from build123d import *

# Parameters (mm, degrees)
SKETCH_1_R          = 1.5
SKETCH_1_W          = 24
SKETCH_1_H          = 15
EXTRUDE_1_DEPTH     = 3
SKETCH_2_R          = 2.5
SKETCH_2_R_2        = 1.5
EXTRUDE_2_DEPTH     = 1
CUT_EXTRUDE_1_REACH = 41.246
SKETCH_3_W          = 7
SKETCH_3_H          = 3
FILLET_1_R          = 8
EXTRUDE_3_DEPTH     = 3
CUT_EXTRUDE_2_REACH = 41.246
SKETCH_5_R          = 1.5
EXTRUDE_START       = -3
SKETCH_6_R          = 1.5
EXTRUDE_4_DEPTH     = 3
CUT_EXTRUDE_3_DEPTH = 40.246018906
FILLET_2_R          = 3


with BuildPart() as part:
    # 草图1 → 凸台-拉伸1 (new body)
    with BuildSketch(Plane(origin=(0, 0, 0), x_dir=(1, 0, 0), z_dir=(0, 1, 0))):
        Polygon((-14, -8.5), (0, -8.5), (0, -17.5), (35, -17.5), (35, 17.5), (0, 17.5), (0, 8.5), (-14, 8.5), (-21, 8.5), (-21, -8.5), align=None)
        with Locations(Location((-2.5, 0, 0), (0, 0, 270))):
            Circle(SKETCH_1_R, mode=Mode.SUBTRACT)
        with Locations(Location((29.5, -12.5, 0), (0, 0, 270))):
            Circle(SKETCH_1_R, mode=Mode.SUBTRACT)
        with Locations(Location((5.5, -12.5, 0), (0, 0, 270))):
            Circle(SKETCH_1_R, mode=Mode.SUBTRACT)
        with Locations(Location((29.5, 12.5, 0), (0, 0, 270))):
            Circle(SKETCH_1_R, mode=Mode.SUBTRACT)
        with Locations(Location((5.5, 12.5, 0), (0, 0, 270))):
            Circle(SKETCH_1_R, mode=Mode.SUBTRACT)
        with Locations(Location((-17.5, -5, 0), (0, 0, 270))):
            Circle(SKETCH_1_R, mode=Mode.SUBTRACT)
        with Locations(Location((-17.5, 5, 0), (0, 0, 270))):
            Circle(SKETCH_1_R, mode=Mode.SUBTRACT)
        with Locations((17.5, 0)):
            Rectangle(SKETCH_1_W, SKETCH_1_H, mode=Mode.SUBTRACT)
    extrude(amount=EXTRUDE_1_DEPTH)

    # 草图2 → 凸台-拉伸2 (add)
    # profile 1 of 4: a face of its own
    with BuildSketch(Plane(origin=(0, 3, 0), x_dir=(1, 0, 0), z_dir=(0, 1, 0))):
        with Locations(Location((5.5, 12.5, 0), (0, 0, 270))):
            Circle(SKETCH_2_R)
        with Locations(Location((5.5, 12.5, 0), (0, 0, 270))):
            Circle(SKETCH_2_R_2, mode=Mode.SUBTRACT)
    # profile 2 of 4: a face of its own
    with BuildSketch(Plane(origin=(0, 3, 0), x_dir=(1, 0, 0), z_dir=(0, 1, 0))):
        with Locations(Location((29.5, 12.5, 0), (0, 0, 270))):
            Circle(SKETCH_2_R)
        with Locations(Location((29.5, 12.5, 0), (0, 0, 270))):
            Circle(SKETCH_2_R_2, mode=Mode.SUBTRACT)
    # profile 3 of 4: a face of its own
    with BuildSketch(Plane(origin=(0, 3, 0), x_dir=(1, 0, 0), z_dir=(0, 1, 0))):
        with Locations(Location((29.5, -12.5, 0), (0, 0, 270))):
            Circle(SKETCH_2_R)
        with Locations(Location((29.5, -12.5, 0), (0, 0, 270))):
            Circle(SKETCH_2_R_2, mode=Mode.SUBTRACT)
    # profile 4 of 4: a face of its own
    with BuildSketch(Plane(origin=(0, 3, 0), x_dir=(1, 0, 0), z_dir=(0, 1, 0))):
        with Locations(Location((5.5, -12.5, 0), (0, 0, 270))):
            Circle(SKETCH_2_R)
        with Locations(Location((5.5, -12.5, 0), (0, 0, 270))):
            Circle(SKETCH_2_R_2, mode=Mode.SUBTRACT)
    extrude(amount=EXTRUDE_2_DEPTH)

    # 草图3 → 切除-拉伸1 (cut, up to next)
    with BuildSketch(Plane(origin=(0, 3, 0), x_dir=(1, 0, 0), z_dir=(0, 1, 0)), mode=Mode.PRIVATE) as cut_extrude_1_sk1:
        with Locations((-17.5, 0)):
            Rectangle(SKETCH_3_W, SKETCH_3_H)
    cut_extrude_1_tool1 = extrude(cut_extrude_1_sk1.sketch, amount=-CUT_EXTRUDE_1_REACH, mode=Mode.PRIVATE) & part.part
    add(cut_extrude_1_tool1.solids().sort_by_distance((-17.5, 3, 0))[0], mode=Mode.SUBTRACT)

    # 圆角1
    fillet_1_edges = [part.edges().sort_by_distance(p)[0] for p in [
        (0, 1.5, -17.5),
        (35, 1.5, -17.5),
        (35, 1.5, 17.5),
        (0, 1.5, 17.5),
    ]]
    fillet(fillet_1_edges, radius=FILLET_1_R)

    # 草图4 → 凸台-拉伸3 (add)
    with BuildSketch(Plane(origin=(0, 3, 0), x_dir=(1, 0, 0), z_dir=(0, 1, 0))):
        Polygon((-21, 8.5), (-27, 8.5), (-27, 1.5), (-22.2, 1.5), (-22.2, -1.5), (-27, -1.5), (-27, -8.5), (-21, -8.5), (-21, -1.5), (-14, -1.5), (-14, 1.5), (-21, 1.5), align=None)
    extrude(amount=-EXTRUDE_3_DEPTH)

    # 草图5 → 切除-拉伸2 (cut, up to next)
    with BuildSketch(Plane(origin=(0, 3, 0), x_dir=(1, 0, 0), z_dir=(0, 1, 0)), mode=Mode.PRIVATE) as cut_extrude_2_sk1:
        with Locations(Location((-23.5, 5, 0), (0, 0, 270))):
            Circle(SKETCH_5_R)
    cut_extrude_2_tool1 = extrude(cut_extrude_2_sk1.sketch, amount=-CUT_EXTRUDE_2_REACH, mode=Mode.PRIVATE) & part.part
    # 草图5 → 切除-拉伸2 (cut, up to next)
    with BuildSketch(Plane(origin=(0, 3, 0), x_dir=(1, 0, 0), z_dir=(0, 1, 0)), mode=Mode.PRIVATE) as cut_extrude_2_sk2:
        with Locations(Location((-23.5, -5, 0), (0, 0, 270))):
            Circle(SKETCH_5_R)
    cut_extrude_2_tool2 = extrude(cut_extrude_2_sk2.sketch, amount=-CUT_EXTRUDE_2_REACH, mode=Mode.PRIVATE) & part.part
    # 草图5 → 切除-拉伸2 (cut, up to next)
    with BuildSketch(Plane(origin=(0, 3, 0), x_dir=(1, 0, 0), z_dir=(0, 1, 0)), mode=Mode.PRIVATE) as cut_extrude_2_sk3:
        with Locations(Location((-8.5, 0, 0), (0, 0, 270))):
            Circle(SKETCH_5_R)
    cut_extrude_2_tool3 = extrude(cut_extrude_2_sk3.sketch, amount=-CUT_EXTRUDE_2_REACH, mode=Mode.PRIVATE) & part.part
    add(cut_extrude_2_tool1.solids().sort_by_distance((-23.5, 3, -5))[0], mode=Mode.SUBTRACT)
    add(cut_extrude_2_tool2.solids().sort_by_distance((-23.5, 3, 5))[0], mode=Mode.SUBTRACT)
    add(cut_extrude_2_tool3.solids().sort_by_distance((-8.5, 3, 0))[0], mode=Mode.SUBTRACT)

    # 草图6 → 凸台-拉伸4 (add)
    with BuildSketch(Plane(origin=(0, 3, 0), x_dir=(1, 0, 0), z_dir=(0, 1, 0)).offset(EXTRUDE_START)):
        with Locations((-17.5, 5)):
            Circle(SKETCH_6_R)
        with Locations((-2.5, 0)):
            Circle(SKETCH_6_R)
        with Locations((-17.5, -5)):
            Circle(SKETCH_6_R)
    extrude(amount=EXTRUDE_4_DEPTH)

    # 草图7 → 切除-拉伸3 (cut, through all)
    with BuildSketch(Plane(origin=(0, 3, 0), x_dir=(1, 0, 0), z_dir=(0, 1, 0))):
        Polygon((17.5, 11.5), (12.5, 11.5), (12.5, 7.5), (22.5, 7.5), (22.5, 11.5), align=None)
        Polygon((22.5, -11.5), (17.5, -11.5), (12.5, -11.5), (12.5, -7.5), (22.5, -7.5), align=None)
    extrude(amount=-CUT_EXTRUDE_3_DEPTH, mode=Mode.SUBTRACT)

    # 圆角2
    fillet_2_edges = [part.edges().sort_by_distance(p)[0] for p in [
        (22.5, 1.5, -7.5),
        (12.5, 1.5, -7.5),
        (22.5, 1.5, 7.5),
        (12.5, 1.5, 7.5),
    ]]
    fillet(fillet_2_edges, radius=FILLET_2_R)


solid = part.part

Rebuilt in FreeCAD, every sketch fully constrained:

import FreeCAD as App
import Part
import Sketcher
from FreeCAD import Vector


def edges_at(feature, points):
    """Names of the edges that pass closest to the given points."""
    edges = feature.Shape.Edges
    near = lambda p: min(range(len(edges)), key=lambda i: edges[i].distToShape(Part.Vertex(*p))[0])
    return sorted({f"Edge{near(p) + 1}" for p in points})

doc = App.newDocument("Part")
body = doc.addObject("PartDesign::Body", "Body")

# Sketch on XZ plane
sketch1 = body.newObject("Sketcher::SketchObject", "Sketch")
sketch1.AttachmentSupport = (doc.getObject("XZ_Plane"), [""])
sketch1.MapMode = "FlatFace"
sketch1.addGeometry([
    Part.LineSegment(Vector(0, 8.5, 0), Vector(0, 17.5, 0)),  # 0
    Part.LineSegment(Vector(0, 17.5, 0), Vector(35, 17.5, 0)),  # 1
    Part.LineSegment(Vector(35, 17.5, 0), Vector(35, -17.5, 0)),  # 2
    Part.LineSegment(Vector(35, -17.5, 0), Vector(0, -17.5, 0)),  # 3
    Part.LineSegment(Vector(0, -17.5, 0), Vector(0, -8.5, 0)),  # 4
    Part.LineSegment(Vector(0, -8.5, 0), Vector(-21, -8.5, 0)),  # 5
    Part.LineSegment(Vector(-21, -8.5, 0), Vector(-21, 8.5, 0)),  # 6
    Part.LineSegment(Vector(-21, 8.5, 0), Vector(0, 8.5, 0)),  # 7
    Part.Circle(Vector(5.5, 12.5, 0), Vector(0, 0, 1), 1.5),  # 8
    Part.Circle(Vector(-17.5, 5, 0), Vector(0, 0, 1), 1.5),  # 9
    Part.Circle(Vector(29.5, 12.5, 0), Vector(0, 0, 1), 1.5),  # 10
    Part.Circle(Vector(-17.5, -5, 0), Vector(0, 0, 1), 1.5),  # 11
    Part.Circle(Vector(-2.5, 0, 0), Vector(0, 0, 1), 1.5),  # 12
    Part.Circle(Vector(5.5, -12.5, 0), Vector(0, 0, 1), 1.5),  # 13
    Part.LineSegment(Vector(29.5, 7.5, 0), Vector(5.5, 7.5, 0)),  # 14
    Part.LineSegment(Vector(5.5, 7.5, 0), Vector(5.5, -7.5, 0)),  # 15
    Part.LineSegment(Vector(5.5, -7.5, 0), Vector(29.5, -7.5, 0)),  # 16
    Part.LineSegment(Vector(29.5, -7.5, 0), Vector(29.5, 7.5, 0)),  # 17
    Part.Circle(Vector(29.5, -12.5, 0), Vector(0, 0, 1), 1.5),  # 18
], False)
sketch1.addConstraint([
    Sketcher.Constraint("Coincident", 0, 2, 1, 1),
    Sketcher.Constraint("Coincident", 1, 2, 2, 1),
    Sketcher.Constraint("Coincident", 2, 2, 3, 1),
    Sketcher.Constraint("Coincident", 3, 2, 4, 1),
    Sketcher.Constraint("Coincident", 4, 2, 5, 1),
    Sketcher.Constraint("Coincident", 5, 2, 6, 1),
    Sketcher.Constraint("Coincident", 6, 2, 7, 1),
    Sketcher.Constraint("Coincident", 7, 2, 0, 1),
    Sketcher.Constraint("Coincident", 14, 2, 15, 1),
    Sketcher.Constraint("Coincident", 15, 2, 16, 1),
    Sketcher.Constraint("Coincident", 16, 2, 17, 1),
    Sketcher.Constraint("Coincident", 17, 2, 14, 1),
    Sketcher.Constraint("Vertical", 0),
    Sketcher.Constraint("Horizontal", 1),
    Sketcher.Constraint("Vertical", 2),
    Sketcher.Constraint("Horizontal", 3),
    Sketcher.Constraint("Vertical", 4),
    Sketcher.Constraint("Horizontal", 5),
    Sketcher.Constraint("Vertical", 6),
    Sketcher.Constraint("Horizontal", 7),
    Sketcher.Constraint("Horizontal", 14),
    Sketcher.Constraint("Vertical", 15),
    Sketcher.Constraint("Horizontal", 16),
    Sketcher.Constraint("Vertical", 17),
    Sketcher.Constraint("Equal", 8, 9),
    Sketcher.Constraint("Equal", 9, 10),
    Sketcher.Constraint("Equal", 10, 11),
    Sketcher.Constraint("Equal", 11, 12),
    Sketcher.Constraint("Equal", 12, 13),
    Sketcher.Constraint("Equal", 13, 18),
    Sketcher.Constraint("Symmetric", 0, 2, 3, 2, -1, 1),
    Sketcher.Constraint("Symmetric", 9, 3, 11, 3, -1),
    Sketcher.Constraint("Symmetric", 8, 3, 13, 3, -1),
    Sketcher.Constraint("Symmetric", 10, 3, 18, 3, -1),
    Sketcher.Constraint("Symmetric", 4, 2, 7, 2, -1),
    Sketcher.Constraint("PointOnObject", 12, 3, -1),
    Sketcher.Constraint("Horizontal", 8, 3, 10, 3),
    Sketcher.Constraint("Vertical", 13, 3, 14, 2),
    Sketcher.Constraint("Vertical", 18, 3, 16, 2),
    Sketcher.Constraint("Equal", 3, 2),
    Sketcher.Constraint("Diameter", 8, 3.0),
    Sketcher.Constraint("DistanceX", 1, 1, 1, 2, 35.0),
    Sketcher.Constraint("DistanceX", 5, 2, 5, 1, 21.0),
    Sketcher.Constraint("DistanceX", 14, 2, 14, 1, 24.0),
    Sketcher.Constraint("DistanceY", 0, 1, 0, 2, 9.0),
    Sketcher.Constraint("DistanceY", 15, 2, 15, 1, 15.0),
    Sketcher.Constraint("DistanceY", -1, 1, 9, 3, 5.0),
    Sketcher.Constraint("DistanceX", 9, 3, 8, 3, 23.0),
    Sketcher.Constraint("DistanceX", 12, 3, 8, 3, 8.0),
    Sketcher.Constraint("DistanceY", 13, 3, 8, 3, 25.0),
    Sketcher.Constraint("DistanceY", 14, 2, 8, 3, 5.0),
    Sketcher.Constraint("DistanceX", -1, 1, 8, 3, 5.5),
])
pad1 = body.newObject("PartDesign::Pad", "Pad")
pad1.Profile = sketch1
pad1.Length = 3
pad1.Reversed = True

# Sketch on XZ plane
sketch2 = body.newObject("Sketcher::SketchObject", "Sketch001")
sketch2.AttachmentSupport = (doc.getObject("XZ_Plane"), [""])
sketch2.MapMode = "FlatFace"
sketch2.AttachmentOffset = App.Placement(Vector(0, 0, -3), App.Rotation())
sketch2.addGeometry([
    Part.Circle(Vector(5.5, -12.5, 0), Vector(0, 0, 1), 2.5),  # 0
    Part.Circle(Vector(5.5, -12.5, 0), Vector(0, 0, 1), 1.5),  # 1
    Part.Circle(Vector(29.5, -12.5, 0), Vector(0, 0, 1), 2.5),  # 2
    Part.Circle(Vector(29.5, -12.5, 0), Vector(0, 0, 1), 1.5),  # 3
    Part.Circle(Vector(29.5, 12.5, 0), Vector(0, 0, 1), 2.5),  # 4
    Part.Circle(Vector(29.5, 12.5, 0), Vector(0, 0, 1), 1.5),  # 5
    Part.Circle(Vector(5.5, 12.5, 0), Vector(0, 0, 1), 2.5),  # 6
    Part.Circle(Vector(5.5, 12.5, 0), Vector(0, 0, 1), 1.5),  # 7
], False)
sketch2.addConstraint([
    Sketcher.Constraint("Coincident", 1, 3, 0, 3),
    Sketcher.Constraint("Coincident", 3, 3, 2, 3),
    Sketcher.Constraint("Coincident", 5, 3, 4, 3),
    Sketcher.Constraint("Coincident", 7, 3, 6, 3),
    Sketcher.Constraint("Equal", 0, 2),
    Sketcher.Constraint("Equal", 1, 3),
    Sketcher.Constraint("Equal", 2, 4),
    Sketcher.Constraint("Equal", 3, 5),
    Sketcher.Constraint("Equal", 4, 6),
    Sketcher.Constraint("Equal", 5, 7),
    Sketcher.Constraint("Symmetric", 2, 3, 4, 3, -1),
    Sketcher.Constraint("Symmetric", 0, 3, 6, 3, -1),
    Sketcher.Constraint("Horizontal", 1, 3, 2, 3),
    Sketcher.Constraint("Diameter", 0, 5.0),
    Sketcher.Constraint("Diameter", 1, 3.0),
    Sketcher.Constraint("DistanceX", 0, 3, 2, 3, 24.0),
    Sketcher.Constraint("DistanceY", 2, 3, 4, 3, 25.0),
    Sketcher.Constraint("DistanceX", -1, 1, 0, 3, 5.5),
])
pad2 = body.newObject("PartDesign::Pad", "Pad001")
pad2.Profile = sketch2
pad2.Length = 1
pad2.Reversed = True

# Sketch on XZ plane
sketch3 = body.newObject("Sketcher::SketchObject", "Sketch002")
sketch3.AttachmentSupport = (doc.getObject("XZ_Plane"), [""])
sketch3.MapMode = "FlatFace"
sketch3.AttachmentOffset = App.Placement(Vector(0, 0, -3), App.Rotation())
sketch3.addGeometry([
    Part.LineSegment(Vector(-21, -1.5, 0), Vector(-21, 1.5, 0)),
    Part.LineSegment(Vector(-21, 1.5, 0), Vector(-14, 1.5, 0)),
    Part.LineSegment(Vector(-14, 1.5, 0), Vector(-14, -1.5, 0)),
    Part.LineSegment(Vector(-14, -1.5, 0), Vector(-21, -1.5, 0)),
], False)
sketch3.addConstraint([
    Sketcher.Constraint("Coincident", 0, 2, 1, 1),
    Sketcher.Constraint("Coincident", 1, 2, 2, 1),
    Sketcher.Constraint("Coincident", 2, 2, 3, 1),
    Sketcher.Constraint("Coincident", 3, 2, 0, 1),
    Sketcher.Constraint("Vertical", 0),
    Sketcher.Constraint("Horizontal", 1),
    Sketcher.Constraint("Vertical", 2),
    Sketcher.Constraint("Horizontal", 3),
    Sketcher.Constraint("DistanceX", 1, 1, 1, 2, 7.0),
    Sketcher.Constraint("DistanceY", 0, 1, 0, 2, 3.0),
    Sketcher.Constraint("DistanceX", 0, 2, -1, 1, 21.0),
    Sketcher.Constraint("DistanceY", -1, 1, 0, 2, 1.5),
])
pocket1 = body.newObject("PartDesign::Pocket", "Pocket")
pocket1.Profile = sketch3
pocket1.Type = "UpToFirst"
pocket1.Reversed = True
doc.recompute()

fillet = body.newObject("PartDesign::Fillet", "Fillet")
fillet.Base = (pocket1, edges_at(pocket1, [
    (0, 1.5, -17.5),
    (35, 1.5, -17.5),
    (35, 1.5, 17.5),
    (0, 1.5, 17.5),
]))
fillet.Radius = 8

# Sketch on XZ plane
sketch4 = body.newObject("Sketcher::SketchObject", "Sketch003")
sketch4.AttachmentSupport = (doc.getObject("XZ_Plane"), [""])
sketch4.MapMode = "FlatFace"
sketch4.AttachmentOffset = App.Placement(Vector(0, 0, -3), App.Rotation())
sketch4.addGeometry([
    Part.LineSegment(Vector(-21, -8.5, 0), Vector(-27, -8.5, 0)),  # 0
    Part.LineSegment(Vector(-27, -8.5, 0), Vector(-27, -1.5, 0)),  # 1
    Part.LineSegment(Vector(-27, -1.5, 0), Vector(-22.2, -1.5, 0)),  # 2
    Part.LineSegment(Vector(-22.2, -1.5, 0), Vector(-22.2, 1.5, 0)),  # 3
    Part.LineSegment(Vector(-22.2, 1.5, 0), Vector(-27, 1.5, 0)),  # 4
    Part.LineSegment(Vector(-27, 1.5, 0), Vector(-27, 8.5, 0)),  # 5
    Part.LineSegment(Vector(-27, 8.5, 0), Vector(-21, 8.5, 0)),  # 6
    Part.LineSegment(Vector(-21, 8.5, 0), Vector(-21, 1.5, 0)),  # 7
    Part.LineSegment(Vector(-21, 1.5, 0), Vector(-14, 1.5, 0)),  # 8
    Part.LineSegment(Vector(-14, 1.5, 0), Vector(-14, -1.5, 0)),  # 9
    Part.LineSegment(Vector(-14, -1.5, 0), Vector(-21, -1.5, 0)),  # 10
    Part.LineSegment(Vector(-21, -1.5, 0), Vector(-21, -8.5, 0)),  # 11
], False)
sketch4.addConstraint([
    Sketcher.Constraint("Coincident", 0, 2, 1, 1),
    Sketcher.Constraint("Coincident", 1, 2, 2, 1),
    Sketcher.Constraint("Coincident", 2, 2, 3, 1),
    Sketcher.Constraint("Coincident", 3, 2, 4, 1),
    Sketcher.Constraint("Coincident", 4, 2, 5, 1),
    Sketcher.Constraint("Coincident", 5, 2, 6, 1),
    Sketcher.Constraint("Coincident", 6, 2, 7, 1),
    Sketcher.Constraint("Coincident", 7, 2, 8, 1),
    Sketcher.Constraint("Coincident", 8, 2, 9, 1),
    Sketcher.Constraint("Coincident", 9, 2, 10, 1),
    Sketcher.Constraint("Coincident", 10, 2, 11, 1),
    Sketcher.Constraint("Coincident", 11, 2, 0, 1),
    Sketcher.Constraint("Horizontal", 0),
    Sketcher.Constraint("Vertical", 1),
    Sketcher.Constraint("Horizontal", 2),
    Sketcher.Constraint("Vertical", 3),
    Sketcher.Constraint("Horizontal", 4),
    Sketcher.Constraint("Vertical", 5),
    Sketcher.Constraint("Horizontal", 6),
    Sketcher.Constraint("Vertical", 7),
    Sketcher.Constraint("Horizontal", 8),
    Sketcher.Constraint("Vertical", 9),
    Sketcher.Constraint("Horizontal", 10),
    Sketcher.Constraint("Vertical", 11),
    Sketcher.Constraint("Symmetric", 1, 2, 4, 2, -1),
    Sketcher.Constraint("Symmetric", 7, 2, 10, 2, -1),
    Sketcher.Constraint("Horizontal", 4, 2, 7, 2),
    Sketcher.Constraint("Equal", 10, 1),
    Sketcher.Constraint("Equal", 1, 5),
    Sketcher.Constraint("DistanceX", 0, 2, 0, 1, 6.0),
    Sketcher.Constraint("DistanceX", 8, 1, 8, 2, 7.0),
    Sketcher.Constraint("DistanceY", 3, 1, 3, 2, 3.0),
    Sketcher.Constraint("DistanceX", 2, 1, 2, 2, 4.8),
    Sketcher.Constraint("DistanceX", 0, 2, -1, 1, 27.0),
])
pad3 = body.newObject("PartDesign::Pad", "Pad002")
pad3.Profile = sketch4
pad3.Length = 3

# Sketch on XZ plane
sketch5 = body.newObject("Sketcher::SketchObject", "Sketch004")
sketch5.AttachmentSupport = (doc.getObject("XZ_Plane"), [""])
sketch5.MapMode = "FlatFace"
sketch5.AttachmentOffset = App.Placement(Vector(0, 0, -3), App.Rotation())
sketch5.addGeometry(Part.Circle(Vector(-23.5, -5, 0), Vector(0, 0, 1), 1.5), False)
sketch5.addConstraint([
    Sketcher.Constraint("Diameter", 0, 3.0),
    Sketcher.Constraint("DistanceY", 0, 3, -1, 1, 5.0),
    Sketcher.Constraint("DistanceX", 0, 3, -1, 1, 23.5),
])
pocket2 = body.newObject("PartDesign::Pocket", "Pocket001")
pocket2.Profile = sketch5
pocket2.Type = "UpToFirst"
pocket2.Reversed = True

# Sketch on XZ plane
sketch6 = body.newObject("Sketcher::SketchObject", "Sketch005")
sketch6.AttachmentSupport = (doc.getObject("XZ_Plane"), [""])
sketch6.MapMode = "FlatFace"
sketch6.AttachmentOffset = App.Placement(Vector(0, 0, -3), App.Rotation())
sketch6.addGeometry(Part.Circle(Vector(-23.5, 5, 0), Vector(0, 0, 1), 1.5), False)
sketch6.addConstraint([
    Sketcher.Constraint("Diameter", 0, 3.0),
    Sketcher.Constraint("DistanceY", -1, 1, 0, 3, 5.0),
    Sketcher.Constraint("DistanceX", 0, 3, -1, 1, 23.5),
])
pocket3 = body.newObject("PartDesign::Pocket", "Pocket002")
pocket3.Profile = sketch6
pocket3.Type = "UpToFirst"
pocket3.Reversed = True

# Sketch on XZ plane
sketch7 = body.newObject("Sketcher::SketchObject", "Sketch006")
sketch7.AttachmentSupport = (doc.getObject("XZ_Plane"), [""])
sketch7.MapMode = "FlatFace"
sketch7.AttachmentOffset = App.Placement(Vector(0, 0, -3), App.Rotation())
sketch7.addGeometry(Part.Circle(Vector(-8.5, 0, 0), Vector(0, 0, 1), 1.5), False)
sketch7.addConstraint([
    Sketcher.Constraint("PointOnObject", 0, 3, -1),
    Sketcher.Constraint("Diameter", 0, 3.0),
    Sketcher.Constraint("DistanceX", 0, 3, -1, 1, 8.5),
])
pocket4 = body.newObject("PartDesign::Pocket", "Pocket003")
pocket4.Profile = sketch7
pocket4.Type = "UpToFirst"
pocket4.Reversed = True

# Sketch on XZ plane
sketch8 = body.newObject("Sketcher::SketchObject", "Sketch007")
sketch8.AttachmentSupport = (doc.getObject("XZ_Plane"), [""])
sketch8.MapMode = "FlatFace"
sketch8.addGeometry([
    Part.Circle(Vector(-17.5, -5, 0), Vector(0, 0, 1), 1.5),
    Part.Circle(Vector(-2.5, 0, 0), Vector(0, 0, 1), 1.5),
    Part.Circle(Vector(-17.5, 5, 0), Vector(0, 0, 1), 1.5),
], False)
sketch8.addConstraint([
    Sketcher.Constraint("Equal", 0, 1),
    Sketcher.Constraint("Equal", 1, 2),
    Sketcher.Constraint("Symmetric", 0, 3, 2, 3, -1),
    Sketcher.Constraint("PointOnObject", 1, 3, -1),
    Sketcher.Constraint("Diameter", 0, 3.0),
    Sketcher.Constraint("DistanceY", 0, 3, -1, 1, 5.0),
    Sketcher.Constraint("DistanceX", 0, 3, 1, 3, 15.0),
    Sketcher.Constraint("DistanceX", 0, 3, -1, 1, 17.5),
])
pad4 = body.newObject("PartDesign::Pad", "Pad003")
pad4.Profile = sketch8
pad4.Length = 3
pad4.Reversed = True

# Sketch on XZ plane
sketch9 = body.newObject("Sketcher::SketchObject", "Sketch008")
sketch9.AttachmentSupport = (doc.getObject("XZ_Plane"), [""])
sketch9.MapMode = "FlatFace"
sketch9.AttachmentOffset = App.Placement(Vector(0, 0, -3), App.Rotation())
sketch9.addGeometry([
    Part.LineSegment(Vector(12.5, -11.5, 0), Vector(12.5, -7.5, 0)),  # 0
    Part.LineSegment(Vector(12.5, -7.5, 0), Vector(22.5, -7.5, 0)),  # 1
    Part.LineSegment(Vector(22.5, -7.5, 0), Vector(22.5, -11.5, 0)),  # 2
    Part.LineSegment(Vector(22.5, -11.5, 0), Vector(12.5, -11.5, 0)),  # 3
    Part.LineSegment(Vector(12.5, 11.5, 0), Vector(22.5, 11.5, 0)),  # 4
    Part.LineSegment(Vector(22.5, 11.5, 0), Vector(22.5, 7.5, 0)),  # 5
    Part.LineSegment(Vector(22.5, 7.5, 0), Vector(12.5, 7.5, 0)),  # 6
    Part.LineSegment(Vector(12.5, 7.5, 0), Vector(12.5, 11.5, 0)),  # 7
], False)
sketch9.addConstraint([
    Sketcher.Constraint("Coincident", 0, 2, 1, 1),
    Sketcher.Constraint("Coincident", 1, 2, 2, 1),
    Sketcher.Constraint("Coincident", 2, 2, 3, 1),
    Sketcher.Constraint("Coincident", 3, 2, 0, 1),
    Sketcher.Constraint("Coincident", 4, 2, 5, 1),
    Sketcher.Constraint("Coincident", 5, 2, 6, 1),
    Sketcher.Constraint("Coincident", 6, 2, 7, 1),
    Sketcher.Constraint("Coincident", 7, 2, 4, 1),
    Sketcher.Constraint("Vertical", 0),
    Sketcher.Constraint("Horizontal", 1),
    Sketcher.Constraint("Vertical", 2),
    Sketcher.Constraint("Horizontal", 3),
    Sketcher.Constraint("Horizontal", 4),
    Sketcher.Constraint("Vertical", 5),
    Sketcher.Constraint("Horizontal", 6),
    Sketcher.Constraint("Vertical", 7),
    Sketcher.Constraint("Symmetric", 2, 2, 4, 2, -1),
    Sketcher.Constraint("Symmetric", 0, 2, 6, 2, -1),
    Sketcher.Constraint("DistanceX", 1, 1, 1, 2, 10.0),
    Sketcher.Constraint("DistanceY", 0, 1, 0, 2, 4.0),
    Sketcher.Constraint("DistanceY", 1, 2, 4, 2, 19.0),
    Sketcher.Constraint("DistanceX", -1, 1, 0, 2, 12.5),
])
pocket5 = body.newObject("PartDesign::Pocket", "Pocket004")
pocket5.Profile = sketch9
pocket5.Type = "ThroughAll"
pocket5.Reversed = True
doc.recompute()

fillet2 = body.newObject("PartDesign::Fillet", "Fillet001")
fillet2.Base = (pocket5, edges_at(pocket5, [
    (22.5, 1.5, -7.5),
    (12.5, 1.5, -7.5),
    (22.5, 1.5, 7.5),
    (12.5, 1.5, 7.5),
]))
fillet2.Radius = 3

doc.recompute()
